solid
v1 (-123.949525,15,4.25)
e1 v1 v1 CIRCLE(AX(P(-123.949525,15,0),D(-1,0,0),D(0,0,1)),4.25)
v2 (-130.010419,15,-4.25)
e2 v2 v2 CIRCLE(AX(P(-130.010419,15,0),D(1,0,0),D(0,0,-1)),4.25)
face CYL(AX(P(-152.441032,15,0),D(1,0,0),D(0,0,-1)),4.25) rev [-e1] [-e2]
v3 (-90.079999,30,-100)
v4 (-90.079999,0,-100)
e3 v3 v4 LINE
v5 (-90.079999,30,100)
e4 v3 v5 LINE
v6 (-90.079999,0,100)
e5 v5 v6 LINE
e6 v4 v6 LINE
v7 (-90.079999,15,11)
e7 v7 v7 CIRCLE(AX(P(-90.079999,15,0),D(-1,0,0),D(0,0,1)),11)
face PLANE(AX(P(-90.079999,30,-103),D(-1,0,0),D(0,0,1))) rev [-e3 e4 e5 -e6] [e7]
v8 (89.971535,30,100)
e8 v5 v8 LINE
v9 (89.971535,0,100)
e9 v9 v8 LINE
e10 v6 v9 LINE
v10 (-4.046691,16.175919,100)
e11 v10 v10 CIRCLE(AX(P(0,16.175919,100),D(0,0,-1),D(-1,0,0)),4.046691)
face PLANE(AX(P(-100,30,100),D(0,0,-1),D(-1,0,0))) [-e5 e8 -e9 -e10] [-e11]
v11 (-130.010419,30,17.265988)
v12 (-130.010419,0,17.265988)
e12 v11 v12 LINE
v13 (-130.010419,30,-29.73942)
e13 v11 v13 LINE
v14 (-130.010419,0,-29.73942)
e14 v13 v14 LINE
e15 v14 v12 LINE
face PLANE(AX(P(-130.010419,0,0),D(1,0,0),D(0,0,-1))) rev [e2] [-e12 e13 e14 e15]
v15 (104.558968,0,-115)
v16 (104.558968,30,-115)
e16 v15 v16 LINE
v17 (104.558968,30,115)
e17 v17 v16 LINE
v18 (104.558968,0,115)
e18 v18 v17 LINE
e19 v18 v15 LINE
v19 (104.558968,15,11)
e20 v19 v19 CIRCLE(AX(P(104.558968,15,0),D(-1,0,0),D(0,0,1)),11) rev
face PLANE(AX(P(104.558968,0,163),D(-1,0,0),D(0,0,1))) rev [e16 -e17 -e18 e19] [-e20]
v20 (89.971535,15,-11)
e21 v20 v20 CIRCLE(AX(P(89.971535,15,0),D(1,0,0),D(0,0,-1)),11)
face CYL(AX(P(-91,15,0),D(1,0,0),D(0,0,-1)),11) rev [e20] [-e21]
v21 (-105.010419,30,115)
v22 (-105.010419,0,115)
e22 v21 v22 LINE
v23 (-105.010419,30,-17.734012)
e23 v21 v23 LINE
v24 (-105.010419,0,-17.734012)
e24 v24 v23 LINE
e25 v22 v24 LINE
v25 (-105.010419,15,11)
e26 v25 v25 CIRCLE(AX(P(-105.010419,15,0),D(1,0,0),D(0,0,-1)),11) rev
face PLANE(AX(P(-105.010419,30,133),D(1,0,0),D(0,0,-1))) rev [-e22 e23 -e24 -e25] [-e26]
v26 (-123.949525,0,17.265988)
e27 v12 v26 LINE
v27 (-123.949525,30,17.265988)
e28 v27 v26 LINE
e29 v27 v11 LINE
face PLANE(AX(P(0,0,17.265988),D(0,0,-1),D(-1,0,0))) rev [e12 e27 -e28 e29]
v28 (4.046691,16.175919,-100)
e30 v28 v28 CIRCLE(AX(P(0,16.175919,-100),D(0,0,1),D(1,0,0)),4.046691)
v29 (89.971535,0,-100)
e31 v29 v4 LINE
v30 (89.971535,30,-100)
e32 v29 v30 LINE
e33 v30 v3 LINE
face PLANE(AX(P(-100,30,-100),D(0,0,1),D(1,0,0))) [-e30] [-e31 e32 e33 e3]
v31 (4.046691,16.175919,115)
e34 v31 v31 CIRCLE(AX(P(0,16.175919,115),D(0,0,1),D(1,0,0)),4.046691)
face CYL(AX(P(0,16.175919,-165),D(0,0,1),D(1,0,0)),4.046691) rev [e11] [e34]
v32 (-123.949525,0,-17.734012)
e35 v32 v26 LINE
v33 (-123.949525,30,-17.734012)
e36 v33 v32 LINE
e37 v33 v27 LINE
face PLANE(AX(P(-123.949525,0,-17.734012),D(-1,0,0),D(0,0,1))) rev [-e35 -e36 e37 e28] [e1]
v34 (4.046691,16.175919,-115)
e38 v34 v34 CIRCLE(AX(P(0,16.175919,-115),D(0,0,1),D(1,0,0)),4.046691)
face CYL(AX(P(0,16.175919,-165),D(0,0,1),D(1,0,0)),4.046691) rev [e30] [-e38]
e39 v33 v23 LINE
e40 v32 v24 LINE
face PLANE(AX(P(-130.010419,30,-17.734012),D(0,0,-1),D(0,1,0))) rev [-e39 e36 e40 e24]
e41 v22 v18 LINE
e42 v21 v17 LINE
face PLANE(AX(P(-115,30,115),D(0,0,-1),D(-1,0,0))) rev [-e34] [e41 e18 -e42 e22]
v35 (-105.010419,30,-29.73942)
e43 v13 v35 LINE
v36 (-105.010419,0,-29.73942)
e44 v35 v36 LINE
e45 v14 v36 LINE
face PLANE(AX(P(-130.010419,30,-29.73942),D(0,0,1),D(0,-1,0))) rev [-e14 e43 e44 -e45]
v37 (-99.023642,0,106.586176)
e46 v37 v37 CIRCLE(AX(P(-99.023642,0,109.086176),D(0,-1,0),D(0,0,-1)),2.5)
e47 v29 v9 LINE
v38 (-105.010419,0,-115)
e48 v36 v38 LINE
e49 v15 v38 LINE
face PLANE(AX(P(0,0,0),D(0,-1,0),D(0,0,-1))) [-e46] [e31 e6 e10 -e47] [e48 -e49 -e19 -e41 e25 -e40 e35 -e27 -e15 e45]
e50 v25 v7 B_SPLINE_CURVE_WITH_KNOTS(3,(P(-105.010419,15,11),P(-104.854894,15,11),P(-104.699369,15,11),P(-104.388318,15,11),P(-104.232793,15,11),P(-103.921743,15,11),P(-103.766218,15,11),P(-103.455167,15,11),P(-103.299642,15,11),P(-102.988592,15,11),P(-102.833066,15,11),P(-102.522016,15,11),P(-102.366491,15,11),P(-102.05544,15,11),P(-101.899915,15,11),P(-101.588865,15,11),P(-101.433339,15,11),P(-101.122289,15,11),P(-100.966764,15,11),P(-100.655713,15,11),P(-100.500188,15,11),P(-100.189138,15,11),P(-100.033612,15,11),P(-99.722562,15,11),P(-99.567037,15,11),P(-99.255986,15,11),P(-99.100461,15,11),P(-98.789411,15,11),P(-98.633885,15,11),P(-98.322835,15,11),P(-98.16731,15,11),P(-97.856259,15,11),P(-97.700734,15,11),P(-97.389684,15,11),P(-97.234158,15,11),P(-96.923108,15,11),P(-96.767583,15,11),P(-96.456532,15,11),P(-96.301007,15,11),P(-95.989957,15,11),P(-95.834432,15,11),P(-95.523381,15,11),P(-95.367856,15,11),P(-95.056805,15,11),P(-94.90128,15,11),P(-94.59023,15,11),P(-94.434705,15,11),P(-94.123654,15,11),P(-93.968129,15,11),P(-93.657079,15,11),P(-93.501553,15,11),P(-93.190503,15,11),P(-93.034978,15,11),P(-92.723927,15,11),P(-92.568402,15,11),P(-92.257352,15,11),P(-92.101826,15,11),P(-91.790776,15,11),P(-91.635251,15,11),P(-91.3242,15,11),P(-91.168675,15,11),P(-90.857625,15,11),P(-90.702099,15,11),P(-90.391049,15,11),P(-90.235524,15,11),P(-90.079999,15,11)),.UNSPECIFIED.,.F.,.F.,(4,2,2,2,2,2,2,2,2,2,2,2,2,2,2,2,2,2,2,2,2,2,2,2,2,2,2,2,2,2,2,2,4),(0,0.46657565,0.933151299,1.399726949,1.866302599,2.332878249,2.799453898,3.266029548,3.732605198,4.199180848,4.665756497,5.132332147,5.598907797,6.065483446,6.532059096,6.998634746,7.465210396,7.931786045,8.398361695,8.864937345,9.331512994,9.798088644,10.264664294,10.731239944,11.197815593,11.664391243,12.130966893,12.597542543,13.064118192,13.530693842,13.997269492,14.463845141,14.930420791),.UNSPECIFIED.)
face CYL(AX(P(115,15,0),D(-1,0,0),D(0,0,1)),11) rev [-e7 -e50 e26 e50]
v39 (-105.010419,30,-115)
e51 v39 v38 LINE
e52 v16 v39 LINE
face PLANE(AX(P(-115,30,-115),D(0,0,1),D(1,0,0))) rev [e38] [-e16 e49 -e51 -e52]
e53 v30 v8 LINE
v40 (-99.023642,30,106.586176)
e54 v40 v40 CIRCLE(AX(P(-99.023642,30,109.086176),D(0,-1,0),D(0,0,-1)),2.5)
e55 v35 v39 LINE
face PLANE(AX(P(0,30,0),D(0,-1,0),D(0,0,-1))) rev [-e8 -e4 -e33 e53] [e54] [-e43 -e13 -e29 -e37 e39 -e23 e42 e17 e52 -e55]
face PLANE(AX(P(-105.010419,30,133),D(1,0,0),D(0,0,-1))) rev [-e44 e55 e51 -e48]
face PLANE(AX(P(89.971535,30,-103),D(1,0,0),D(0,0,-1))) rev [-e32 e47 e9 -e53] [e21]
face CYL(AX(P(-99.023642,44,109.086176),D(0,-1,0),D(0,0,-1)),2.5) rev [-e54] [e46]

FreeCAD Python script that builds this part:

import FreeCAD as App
import Part
import Sketcher
from FreeCAD import Vector


def add_polygon(sketch, points):
    """Adds a closed chain of lines whose ends are joined by coincident constraints."""
    first, n = sketch.GeometryCount, len(points)
    for a, b in zip(points, points[1:] + points[:1]):
        sketch.addGeometry(Part.LineSegment(App.Vector(*a, 0), App.Vector(*b, 0)), False)
    for i in range(n):
        sketch.addConstraint(Sketcher.Constraint("Coincident", first + i, 2, first + (i + 1) % n, 1))

doc = App.newDocument("Part")
params = doc.addObject("Spreadsheet::Sheet", "Params")
for row, (alias, value) in enumerate([
    ("sketch1_width", "230 mm"),
    ("sketch1_width2", "200 mm"),
    ("pad1_length", "30 mm"),
    ("sketch2_diameter", "22 mm"),
    ("pocket1_length", "206 mm"),
    ("sketch3_width", "30 mm"),
    ("pad2_length", "28 mm"),
    ("sketch4_height", "30 mm"),
    ("pad3_length", "41 mm"),
    ("sketch5_diameter", "8 mm"),
    ("pocket2_length", "218 mm"),
    ("pocket3_length", "280 mm"),
    ("sketch7_diameter", "22 mm"),
    ("pocket4_length", "230 mm"),
    ("sketch8_height", "30 mm"),
    ("pocket5_length", "41 mm"),
    ("sketch9_diameter", "8 mm"),
    ("pocket6_length", "264 mm"),
    ("sketch10_diameter", "8 mm"),
    ("pocket7_length", "264 mm"),
    ("sketch11_height", "30 mm"),
    ("pocket8_length", "64 mm"),
    ("sketch12_height", "30 mm"),
    ("pad4_length", "40 mm"),
    ("sketch13_diameter", "8 mm"),
    ("pocket9_length", "276 mm"),
    ("sketch14_height", "30 mm"),
    ("pad5_length", "203 mm"),
    ("sketch15_height", "30 mm"),
    ("sketch15_width", "9.920001 mm"),
    ("pad6_length", "203 mm"),
    ("sketch16_height", "30 mm"),
    ("pocket10_length", "203 mm"),
    ("sketch17_height", "30 mm"),
    ("pocket11_length", "278 mm"),
    ("pad7_length", "30 mm"),
    ("sketch19_height", "30 mm"),
    ("pocket12_length", "248 mm"),
    ("sketch20_diameter", "22 mm"),
    ("pocket13_length", "248 mm"),
    ("sketch21_width", "30 mm"),
    ("pad8_length", "25 mm"),
    ("sketch22_height", "30 mm"),
    ("pad9_length", "35 mm"),
    ("sketch23_height", "30 mm"),
    ("pocket14_length", "35 mm"),
    ("sketch24_diameter", "8.5 mm"),
    ("pocket15_length", "257 mm"),
    ("sketch25_diameter", "5 mm"),
    ("pocket16_length", "44 mm"),
], start=1):
    params.set(f"A{row}", alias)
    params.set(f"B{row}", "=" + value)
    params.setAlias(f"B{row}", alias)

body = doc.addObject("PartDesign::Body", "Body")

# Sketch on XZ plane
sketch1 = body.newObject("Sketcher::SketchObject", "Sketch")
sketch1.AttachmentSupport = (doc.getObject("XZ_Plane"), [""])
sketch1.MapMode = "FlatFace"
add_polygon(sketch1, [(-115, -115), (-115, 115), (115, 115), (115, -115)])  # lines 0-3
add_polygon(sketch1, [(100, 100), (-100, 100), (-100, -100), (100, -100)])  # lines 4-7
sketch1.addConstraint(Sketcher.Constraint("Vertical", 0))
sketch1.addConstraint(Sketcher.Constraint("Horizontal", 1))
sketch1.addConstraint(Sketcher.Constraint("Vertical", 2))
sketch1.addConstraint(Sketcher.Constraint("Horizontal", 3))
sketch1.addConstraint(Sketcher.Constraint("Horizontal", 4))
sketch1.addConstraint(Sketcher.Constraint("Vertical", 5))
sketch1.addConstraint(Sketcher.Constraint("Horizontal", 6))
sketch1.addConstraint(Sketcher.Constraint("Vertical", 7))
sketch1.addConstraint(Sketcher.Constraint("Symmetric", 0, 2, 2, 2, -1, 1))
sketch1.addConstraint(Sketcher.Constraint("Symmetric", 4, 2, 6, 2, -1, 1))
sketch1.addConstraint(Sketcher.Constraint("Equal", 3, 0))
sketch1.addConstraint(Sketcher.Constraint("Equal", 6, 5))
sketch1.addConstraint(Sketcher.Constraint("DistanceX", 1, 1, 1, 2, 230.0))
sketch1.addConstraint(Sketcher.Constraint("DistanceX", 4, 2, 4, 1, 200.0))
sketch1.setExpression("Constraints[20]", "Params.sketch1_width")
sketch1.setExpression("Constraints[21]", "Params.sketch1_width2")
pad1 = body.newObject("PartDesign::Pad", "Pad")
pad1.Profile = sketch1
pad1.setExpression("Length", "Params.pad1_length")
pad1.Reversed = True

# Sketch on YZ plane
sketch2 = body.newObject("Sketcher::SketchObject", "Sketch001")
sketch2.AttachmentSupport = (doc.getObject("YZ_Plane"), [""])
sketch2.MapMode = "FlatFace"
sketch2.AttachmentOffset = App.Placement(Vector(0, 0, 115), App.Rotation())
sketch2.addGeometry(Part.Circle(Vector(15, 0, 0), Vector(0, 0, 1), 11), False)
sketch2.addConstraint(Sketcher.Constraint("PointOnObject", 0, 3, -1))
sketch2.addConstraint(Sketcher.Constraint("Diameter", 0, 22.0))
sketch2.addConstraint(Sketcher.Constraint("DistanceX", -1, 1, 0, 3, 15.0))
sketch2.setExpression("Constraints[1]", "Params.sketch2_diameter")
pocket1 = body.newObject("PartDesign::Pocket", "Pocket")
pocket1.Profile = sketch2
pocket1.setExpression("Length", "Params.pocket1_length")

# Sketch on YZ plane
sketch3 = body.newObject("Sketcher::SketchObject", "Sketch002")
sketch3.AttachmentSupport = (doc.getObject("YZ_Plane"), [""])
sketch3.MapMode = "FlatFace"
sketch3.AttachmentOffset = App.Placement(Vector(0, 0, 115), App.Rotation())
add_polygon(sketch3, [(30, -20), (0, -20), (0, -33), (30, -33)])  # lines 0-3
sketch3.addConstraint(Sketcher.Constraint("Horizontal", 0))
sketch3.addConstraint(Sketcher.Constraint("Vertical", 1))
sketch3.addConstraint(Sketcher.Constraint("Horizontal", 2))
sketch3.addConstraint(Sketcher.Constraint("Vertical", 3))
sketch3.addConstraint(Sketcher.Constraint("PointOnObject", 0, 2, -2))
sketch3.addConstraint(Sketcher.Constraint("DistanceX", 0, 2, 0, 1, 30.0))
sketch3.addConstraint(Sketcher.Constraint("DistanceY", 1, 2, 1, 1, 12.648409))
sketch3.addConstraint(Sketcher.Constraint("DistanceY", 0, 2, -1, 1, 20.286584))
sketch3.setExpression("Constraints[9]", "Params.sketch3_width")
pad2 = body.newObject("PartDesign::Pad", "Pad001")
pad2.Profile = sketch3
pad2.setExpression("Length", "Params.pad2_length")

# Sketch on XY plane
sketch4 = body.newObject("Sketcher::SketchObject", "Sketch003")
sketch4.AttachmentSupport = (doc.getObject("XY_Plane"), [""])
sketch4.MapMode = "FlatFace"
sketch4.AttachmentOffset = App.Placement(Vector(0, 0, -20.286584), App.Rotation())
add_polygon(sketch4, [(110, 30), (110, 0), (143, 0), (143, 30)])  # lines 0-3
sketch4.addConstraint(Sketcher.Constraint("Vertical", 0))
sketch4.addConstraint(Sketcher.Constraint("Horizontal", 1))
sketch4.addConstraint(Sketcher.Constraint("Vertical", 2))
sketch4.addConstraint(Sketcher.Constraint("Horizontal", 3))
sketch4.addConstraint(Sketcher.Constraint("PointOnObject", 0, 2, -1))
sketch4.addConstraint(Sketcher.Constraint("DistanceY", 0, 2, 0, 1, 30.0))
sketch4.addConstraint(Sketcher.Constraint("DistanceX", -1, 1, 1, 2, 143.0))
sketch4.addConstraint(Sketcher.Constraint("DistanceX", 1, 1, 1, 2, 33.277007))
sketch4.setExpression("Constraints[9]", "Params.sketch4_height")
pad3 = body.newObject("PartDesign::Pad", "Pad002")
pad3.Profile = sketch4
pad3.setExpression("Length", "Params.pad3_length")

# Sketch on YZ plane
sketch5 = body.newObject("Sketcher::SketchObject", "Sketch004")
sketch5.AttachmentSupport = (doc.getObject("YZ_Plane"), [""])
sketch5.MapMode = "FlatFace"
sketch5.AttachmentOffset = App.Placement(Vector(0, 0, -115), App.Rotation())
sketch5.addGeometry(Part.Circle(Vector(15, 0, 0), Vector(0, 0, 1), 4), False)
sketch5.addConstraint(Sketcher.Constraint("PointOnObject", 0, 3, -1))
sketch5.addConstraint(Sketcher.Constraint("Diameter", 0, 8.0))
sketch5.addConstraint(Sketcher.Constraint("DistanceX", -1, 1, 0, 3, 15.0))
sketch5.setExpression("Constraints[1]", "Params.sketch5_diameter")
pocket2 = body.newObject("PartDesign::Pocket", "Pocket001")
pocket2.Profile = sketch5
pocket2.setExpression("Length", "Params.pocket2_length")
pocket2.Reversed = True

# Sketch on XY plane
sketch6 = body.newObject("Sketcher::SketchObject", "Sketch005")
sketch6.AttachmentSupport = (doc.getObject("XY_Plane"), [""])
sketch6.MapMode = "FlatFace"
sketch6.AttachmentOffset = App.Placement(Vector(0, 0, 115), App.Rotation())
sketch6.addGeometry(Part.Circle(Vector(0, 16.2, 0), Vector(0, 0, 1), 4), False)
sketch6.addConstraint(Sketcher.Constraint("PointOnObject", 0, 3, -2))
sketch6.addConstraint(Sketcher.Constraint("Diameter", 0, 8.093381))
sketch6.addConstraint(Sketcher.Constraint("DistanceY", -1, 1, 0, 3, 16.175919))
pocket3 = body.newObject("PartDesign::Pocket", "Pocket002")
pocket3.Profile = sketch6
pocket3.setExpression("Length", "Params.pocket3_length")

# Sketch on YZ plane
sketch7 = body.newObject("Sketcher::SketchObject", "Sketch006")
sketch7.AttachmentSupport = (doc.getObject("YZ_Plane"), [""])
sketch7.MapMode = "FlatFace"
sketch7.AttachmentOffset = App.Placement(Vector(0, 0, 115), App.Rotation())
sketch7.addGeometry(Part.Circle(Vector(15, 0, 0), Vector(0, 0, 1), 11), False)
sketch7.addConstraint(Sketcher.Constraint("PointOnObject", 0, 3, -1))
sketch7.addConstraint(Sketcher.Constraint("Diameter", 0, 22.0))
sketch7.addConstraint(Sketcher.Constraint("DistanceX", -1, 1, 0, 3, 15.0))
sketch7.setExpression("Constraints[1]", "Params.sketch7_diameter")
pocket4 = body.newObject("PartDesign::Pocket", "Pocket003")
pocket4.Profile = sketch7
pocket4.setExpression("Length", "Params.pocket4_length")

# Sketch on XY plane
sketch8 = body.newObject("Sketcher::SketchObject", "Sketch007")
sketch8.AttachmentSupport = (doc.getObject("XY_Plane"), [""])
sketch8.MapMode = "FlatFace"
sketch8.AttachmentOffset = App.Placement(Vector(0, 0, 20.713416), App.Rotation())
add_polygon(sketch8, [(115, 30), (115, 0), (135, 0), (135, 30)])  # lines 0-3
sketch8.addConstraint(Sketcher.Constraint("Vertical", 0))
sketch8.addConstraint(Sketcher.Constraint("Horizontal", 1))
sketch8.addConstraint(Sketcher.Constraint("Vertical", 2))
sketch8.addConstraint(Sketcher.Constraint("Horizontal", 3))
sketch8.addConstraint(Sketcher.Constraint("PointOnObject", 0, 2, -1))
sketch8.addConstraint(Sketcher.Constraint("DistanceY", 0, 2, 0, 1, 30.0))
sketch8.addConstraint(Sketcher.Constraint("DistanceX", -1, 1, 0, 2, 115.0))
sketch8.addConstraint(Sketcher.Constraint("DistanceX", 1, 1, 1, 2, 19.776161))
sketch8.setExpression("Constraints[9]", "Params.sketch8_height")
pocket5 = body.newObject("PartDesign::Pocket", "Pocket004")
pocket5.Profile = sketch8
pocket5.setExpression("Length", "Params.pocket5_length")

# Sketch on YZ plane
sketch9 = body.newObject("Sketcher::SketchObject", "Sketch008")
sketch9.AttachmentSupport = (doc.getObject("YZ_Plane"), [""])
sketch9.MapMode = "FlatFace"
sketch9.AttachmentOffset = App.Placement(Vector(0, 0, -115), App.Rotation())
sketch9.addGeometry(Part.Circle(Vector(15, 0, 0), Vector(0, 0, 1), 4), False)
sketch9.addConstraint(Sketcher.Constraint("PointOnObject", 0, 3, -1))
sketch9.addConstraint(Sketcher.Constraint("Diameter", 0, 8.0))
sketch9.addConstraint(Sketcher.Constraint("DistanceX", -1, 1, 0, 3, 15.0))
sketch9.setExpression("Constraints[1]", "Params.sketch9_diameter")
pocket6 = body.newObject("PartDesign::Pocket", "Pocket005")
pocket6.Profile = sketch9
pocket6.setExpression("Length", "Params.pocket6_length")
pocket6.Reversed = True

# Sketch on XZ plane
sketch10 = body.newObject("Sketcher::SketchObject", "Sketch009")
sketch10.AttachmentSupport = (doc.getObject("XZ_Plane"), [""])
sketch10.MapMode = "FlatFace"
sketch10.AttachmentOffset = App.Placement(Vector(0, 0, -30), App.Rotation())
sketch10.addGeometry(Part.Circle(Vector(106.9, 106.2, 0), Vector(0, 0, 1), 4), False)
sketch10.addConstraint(Sketcher.Constraint("Diameter", 0, 8.0))
sketch10.addConstraint(Sketcher.Constraint("DistanceX", -1, 1, 0, 3, 106.851068))
sketch10.addConstraint(Sketcher.Constraint("DistanceY", -1, 1, 0, 3, 106.177183))
sketch10.setExpression("Constraints[0]", "Params.sketch10_diameter")
pocket7 = body.newObject("PartDesign::Pocket", "Pocket006")
pocket7.Profile = sketch10
pocket7.setExpression("Length", "Params.pocket7_length")
pocket7.Reversed = True

# Sketch on XY plane
sketch11 = body.newObject("Sketcher::SketchObject", "Sketch010")
sketch11.AttachmentSupport = (doc.getObject("XY_Plane"), [""])
sketch11.MapMode = "FlatFace"
sketch11.AttachmentOffset = App.Placement(Vector(0, 0, 20.713416), App.Rotation())
add_polygon(sketch11, [(135, 30), (135, 0), (143, 0), (143, 30)])  # lines 0-3
sketch11.addConstraint(Sketcher.Constraint("Vertical", 0))
sketch11.addConstraint(Sketcher.Constraint("Horizontal", 1))
sketch11.addConstraint(Sketcher.Constraint("Vertical", 2))
sketch11.addConstraint(Sketcher.Constraint("Horizontal", 3))
sketch11.addConstraint(Sketcher.Constraint("PointOnObject", 0, 2, -1))
sketch11.addConstraint(Sketcher.Constraint("DistanceY", 0, 2, 0, 1, 30.0))
sketch11.addConstraint(Sketcher.Constraint("DistanceX", -1, 1, 1, 2, 143.0))
sketch11.addConstraint(Sketcher.Constraint("DistanceX", 1, 1, 1, 2, 8.223839))
sketch11.setExpression("Constraints[9]", "Params.sketch11_height")
pocket8 = body.newObject("PartDesign::Pocket", "Pocket007")
pocket8.Profile = sketch11
pocket8.setExpression("Length", "Params.pocket8_length")

# Sketch on XY plane
sketch12 = body.newObject("Sketcher::SketchObject", "Sketch011")
sketch12.AttachmentSupport = (doc.getObject("XY_Plane"), [""])
sketch12.MapMode = "FlatFace"
sketch12.AttachmentOffset = App.Placement(Vector(0, 0, -20.286584), App.Rotation())
add_polygon(sketch12, [(128, 30), (128, 0), (135, 0), (135, 30)])  # lines 0-3
sketch12.addConstraint(Sketcher.Constraint("Vertical", 0))
sketch12.addConstraint(Sketcher.Constraint("Horizontal", 1))
sketch12.addConstraint(Sketcher.Constraint("Vertical", 2))
sketch12.addConstraint(Sketcher.Constraint("Horizontal", 3))
sketch12.addConstraint(Sketcher.Constraint("PointOnObject", 0, 2, -1))
sketch12.addConstraint(Sketcher.Constraint("DistanceY", 0, 2, 0, 1, 30.0))
sketch12.addConstraint(Sketcher.Constraint("DistanceX", 1, 1, 1, 2, 6.51244))
sketch12.addConstraint(Sketcher.Constraint("DistanceX", -1, 1, 0, 2, 128.263721))
sketch12.setExpression("Constraints[9]", "Params.sketch12_height")
pad4 = body.newObject("PartDesign::Pad", "Pad003")
pad4.Profile = sketch12
pad4.setExpression("Length", "Params.pad4_length")

# Sketch on YZ plane
sketch13 = body.newObject("Sketcher::SketchObject", "Sketch012")
sketch13.AttachmentSupport = (doc.getObject("YZ_Plane"), [""])
sketch13.MapMode = "FlatFace"
sketch13.AttachmentOffset = App.Placement(Vector(0, 0, -115), App.Rotation())
sketch13.addGeometry(Part.Circle(Vector(15, 0, 0), Vector(0, 0, 1), 4), False)
sketch13.addConstraint(Sketcher.Constraint("PointOnObject", 0, 3, -1))
sketch13.addConstraint(Sketcher.Constraint("Diameter", 0, 8.0))
sketch13.addConstraint(Sketcher.Constraint("DistanceX", -1, 1, 0, 3, 15.0))
sketch13.setExpression("Constraints[1]", "Params.sketch13_diameter")
pocket9 = body.newObject("PartDesign::Pocket", "Pocket008")
pocket9.Profile = sketch13
pocket9.setExpression("Length", "Params.pocket9_length")
pocket9.Reversed = True

# Sketch on XY plane
sketch14 = body.newObject("Sketcher::SketchObject", "Sketch013")
sketch14.AttachmentSupport = (doc.getObject("XY_Plane"), [""])
sketch14.MapMode = "FlatFace"
sketch14.AttachmentOffset = App.Placement(Vector(0, 0, 100), App.Rotation())
add_polygon(sketch14, [(100, 30), (100, 0), (90, 0), (90, 30)])  # lines 0-3
sketch14.addConstraint(Sketcher.Constraint("Vertical", 0))
sketch14.addConstraint(Sketcher.Constraint("Horizontal", 1))
sketch14.addConstraint(Sketcher.Constraint("Vertical", 2))
sketch14.addConstraint(Sketcher.Constraint("Horizontal", 3))
sketch14.addConstraint(Sketcher.Constraint("PointOnObject", 0, 2, -1))
sketch14.addConstraint(Sketcher.Constraint("DistanceY", 0, 2, 0, 1, 30.0))
sketch14.addConstraint(Sketcher.Constraint("DistanceX", -1, 1, 0, 2, 100.0))
sketch14.addConstraint(Sketcher.Constraint("DistanceX", 1, 2, 1, 1, 10.028465))
sketch14.setExpression("Constraints[9]", "Params.sketch14_height")
pad5 = body.newObject("PartDesign::Pad", "Pad004")
pad5.Profile = sketch14
pad5.setExpression("Length", "Params.pad5_length")
pad5.Reversed = True

# Sketch on XY plane
sketch15 = body.newObject("Sketcher::SketchObject", "Sketch014")
sketch15.AttachmentSupport = (doc.getObject("XY_Plane"), [""])
sketch15.MapMode = "FlatFace"
sketch15.AttachmentOffset = App.Placement(Vector(0, 0, 100), App.Rotation())
add_polygon(sketch15, [(-90, 30), (-90, 0), (-100, 0), (-100, 30)])  # lines 0-3
sketch15.addConstraint(Sketcher.Constraint("Vertical", 0))
sketch15.addConstraint(Sketcher.Constraint("Horizontal", 1))
sketch15.addConstraint(Sketcher.Constraint("Vertical", 2))
sketch15.addConstraint(Sketcher.Constraint("Horizontal", 3))
sketch15.addConstraint(Sketcher.Constraint("PointOnObject", 0, 2, -1))
sketch15.addConstraint(Sketcher.Constraint("DistanceY", 0, 2, 0, 1, 30.0))
sketch15.addConstraint(Sketcher.Constraint("DistanceX", 1, 2, -1, 1, 100.0))
sketch15.addConstraint(Sketcher.Constraint("DistanceX", 1, 2, 1, 1, 9.920001))
sketch15.setExpression("Constraints[9]", "Params.sketch15_height")
sketch15.setExpression("Constraints[11]", "Params.sketch15_width")
pad6 = body.newObject("PartDesign::Pad", "Pad005")
pad6.Profile = sketch15
pad6.setExpression("Length", "Params.pad6_length")
pad6.Reversed = True

# Sketch on XY plane
sketch16 = body.newObject("Sketcher::SketchObject", "Sketch015")
sketch16.AttachmentSupport = (doc.getObject("XY_Plane"), [""])
sketch16.MapMode = "FlatFace"
sketch16.AttachmentOffset = App.Placement(Vector(0, 0, -32.934993), App.Rotation())
add_polygon(sketch16, [(135, 30), (135, 0), (115, 0), (115, 30)])  # lines 0-3
sketch16.addConstraint(Sketcher.Constraint("Vertical", 0))
sketch16.addConstraint(Sketcher.Constraint("Horizontal", 1))
sketch16.addConstraint(Sketcher.Constraint("Vertical", 2))
sketch16.addConstraint(Sketcher.Constraint("Horizontal", 3))
sketch16.addConstraint(Sketcher.Constraint("PointOnObject", 0, 2, -1))
sketch16.addConstraint(Sketcher.Constraint("DistanceY", 0, 2, 0, 1, 30.0))
sketch16.addConstraint(Sketcher.Constraint("DistanceX", -1, 1, 1, 2, 115.0))
sketch16.addConstraint(Sketcher.Constraint("DistanceX", 1, 2, 1, 1, 19.776161))
sketch16.setExpression("Constraints[9]", "Params.sketch16_height")
pocket10 = body.newObject("PartDesign::Pocket", "Pocket009")
pocket10.Profile = sketch16
pocket10.setExpression("Length", "Params.pocket10_length")
pocket10.Reversed = True

# Sketch on XY plane
sketch17 = body.newObject("Sketcher::SketchObject", "Sketch016")
sketch17.AttachmentSupport = (doc.getObject("XY_Plane"), [""])
sketch17.MapMode = "FlatFace"
sketch17.AttachmentOffset = App.Placement(Vector(0, 0, -115), App.Rotation())
add_polygon(sketch17, [(115, 30), (115, 0), (105, 0), (105, 30)])  # lines 0-3
sketch17.addConstraint(Sketcher.Constraint("Vertical", 0))
sketch17.addConstraint(Sketcher.Constraint("Horizontal", 1))
sketch17.addConstraint(Sketcher.Constraint("Vertical", 2))
sketch17.addConstraint(Sketcher.Constraint("Horizontal", 3))
sketch17.addConstraint(Sketcher.Constraint("PointOnObject", 0, 2, -1))
sketch17.addConstraint(Sketcher.Constraint("DistanceY", 0, 2, 0, 1, 30.0))
sketch17.addConstraint(Sketcher.Constraint("DistanceX", -1, 1, 0, 2, 115.0))
sketch17.addConstraint(Sketcher.Constraint("DistanceX", 1, 2, 1, 1, 10.441032))
sketch17.setExpression("Constraints[9]", "Params.sketch17_height")
pocket11 = body.newObject("PartDesign::Pocket", "Pocket010")
pocket11.Profile = sketch17
pocket11.setExpression("Length", "Params.pocket11_length")
pocket11.Reversed = True

# Sketch on XZ plane
sketch18 = body.newObject("Sketcher::SketchObject", "Sketch017")
sketch18.AttachmentSupport = (doc.getObject("XZ_Plane"), [""])
sketch18.MapMode = "FlatFace"
sketch18.AttachmentOffset = App.Placement(Vector(0, 0, -30), App.Rotation())
add_polygon(sketch18, [(100.5, 102.9), (100.5, 115), (104.6, 115), (104.6, 102.9)])  # lines 0-3
sketch18.addConstraint(Sketcher.Constraint("Vertical", 0))
sketch18.addConstraint(Sketcher.Constraint("Horizontal", 1))
sketch18.addConstraint(Sketcher.Constraint("Vertical", 2))
sketch18.addConstraint(Sketcher.Constraint("Horizontal", 3))
sketch18.addConstraint(Sketcher.Constraint("DistanceY", -1, 1, 0, 2, 115.0))
sketch18.addConstraint(Sketcher.Constraint("DistanceY", 0, 1, 0, 2, 12.100968))
sketch18.addConstraint(Sketcher.Constraint("DistanceX", 1, 1, 1, 2, 4.062093))
sketch18.addConstraint(Sketcher.Constraint("DistanceX", -1, 1, 0, 2, 100.496874))
pad7 = body.newObject("PartDesign::Pad", "Pad006")
pad7.Profile = sketch18
pad7.setExpression("Length", "Params.pad7_length")

# Sketch on XY plane
sketch19 = body.newObject("Sketcher::SketchObject", "Sketch018")
sketch19.AttachmentSupport = (doc.getObject("XY_Plane"), [""])
sketch19.MapMode = "FlatFace"
sketch19.AttachmentOffset = App.Placement(Vector(0, 0, -115), App.Rotation())
add_polygon(sketch19, [(-105, 30), (-105, 0), (-115, 0), (-115, 30)])  # lines 0-3
sketch19.addConstraint(Sketcher.Constraint("Vertical", 0))
sketch19.addConstraint(Sketcher.Constraint("Horizontal", 1))
sketch19.addConstraint(Sketcher.Constraint("Vertical", 2))
sketch19.addConstraint(Sketcher.Constraint("Horizontal", 3))
sketch19.addConstraint(Sketcher.Constraint("PointOnObject", 0, 2, -1))
sketch19.addConstraint(Sketcher.Constraint("DistanceY", 0, 2, 0, 1, 30.0))
sketch19.addConstraint(Sketcher.Constraint("DistanceX", 1, 2, -1, 1, 115.0))
sketch19.addConstraint(Sketcher.Constraint("DistanceX", 1, 2, 1, 1, 9.989581))
sketch19.setExpression("Constraints[9]", "Params.sketch19_height")
pocket12 = body.newObject("PartDesign::Pocket", "Pocket011")
pocket12.Profile = sketch19
pocket12.setExpression("Length", "Params.pocket12_length")
pocket12.Reversed = True

# Sketch on YZ plane
sketch20 = body.newObject("Sketcher::SketchObject", "Sketch019")
sketch20.AttachmentSupport = (doc.getObject("YZ_Plane"), [""])
sketch20.MapMode = "FlatFace"
sketch20.AttachmentOffset = App.Placement(Vector(0, 0, 142.989581), App.Rotation())
sketch20.addGeometry(Part.Circle(Vector(15, 0, 0), Vector(0, 0, 1), 11), False)
sketch20.addConstraint(Sketcher.Constraint("PointOnObject", 0, 3, -1))
sketch20.addConstraint(Sketcher.Constraint("Diameter", 0, 22.0))
sketch20.addConstraint(Sketcher.Constraint("DistanceX", -1, 1, 0, 3, 15.0))
sketch20.setExpression("Constraints[1]", "Params.sketch20_diameter")
pocket13 = body.newObject("PartDesign::Pocket", "Pocket012")
pocket13.Profile = sketch20
pocket13.setExpression("Length", "Params.pocket13_length")

# Sketch on YZ plane
sketch21 = body.newObject("Sketcher::SketchObject", "Sketch020")
sketch21.AttachmentSupport = (doc.getObject("YZ_Plane"), [""])
sketch21.MapMode = "FlatFace"
sketch21.AttachmentOffset = App.Placement(Vector(0, 0, -105.010419), App.Rotation())
add_polygon(sketch21, [(30, -30), (0, -30), (0, -18), (30, -18)])  # lines 0-3
sketch21.addConstraint(Sketcher.Constraint("Horizontal", 0))
sketch21.addConstraint(Sketcher.Constraint("Vertical", 1))
sketch21.addConstraint(Sketcher.Constraint("Horizontal", 2))
sketch21.addConstraint(Sketcher.Constraint("Vertical", 3))
sketch21.addConstraint(Sketcher.Constraint("PointOnObject", 0, 2, -2))
sketch21.addConstraint(Sketcher.Constraint("DistanceX", 0, 2, 0, 1, 30.0))
sketch21.addConstraint(Sketcher.Constraint("DistanceY", 1, 1, 1, 2, 12.005408))
sketch21.addConstraint(Sketcher.Constraint("DistanceY", 0, 2, -1, 1, 29.73942))
sketch21.setExpression("Constraints[9]", "Params.sketch21_width")
pad8 = body.newObject("PartDesign::Pad", "Pad007")
pad8.Profile = sketch21
pad8.setExpression("Length", "Params.pad8_length")
pad8.Reversed = True

# Sketch on XY plane
sketch22 = body.newObject("Sketcher::SketchObject", "Sketch021")
sketch22.AttachmentSupport = (doc.getObject("XY_Plane"), [""])
sketch22.MapMode = "FlatFace"
sketch22.AttachmentOffset = App.Placement(Vector(0, 0, -17.734012), App.Rotation())
add_polygon(sketch22, [(-130, 30), (-130, 0), (-120, 0), (-120, 30)])  # lines 0-3
sketch22.addConstraint(Sketcher.Constraint("Vertical", 0))
sketch22.addConstraint(Sketcher.Constraint("Horizontal", 1))
sketch22.addConstraint(Sketcher.Constraint("Vertical", 2))
sketch22.addConstraint(Sketcher.Constraint("Horizontal", 3))
sketch22.addConstraint(Sketcher.Constraint("PointOnObject", 0, 2, -1))
sketch22.addConstraint(Sketcher.Constraint("DistanceY", 0, 2, 0, 1, 30.0))
sketch22.addConstraint(Sketcher.Constraint("DistanceX", 1, 1, 1, 2, 9.568764))
sketch22.addConstraint(Sketcher.Constraint("DistanceX", 0, 2, -1, 1, 130.010419))
sketch22.setExpression("Constraints[9]", "Params.sketch22_height")
pad9 = body.newObject("PartDesign::Pad", "Pad008")
pad9.Profile = sketch22
pad9.setExpression("Length", "Params.pad9_length")

# Sketch on XY plane
sketch23 = body.newObject("Sketcher::SketchObject", "Sketch022")
sketch23.AttachmentSupport = (doc.getObject("XY_Plane"), [""])
sketch23.MapMode = "FlatFace"
sketch23.AttachmentOffset = App.Placement(Vector(0, 0, 17.265988), App.Rotation())
add_polygon(sketch23, [(-123.9, 30), (-123.9, 0), (-120.4, 0), (-120.4, 30)])  # lines 0-3
sketch23.addConstraint(Sketcher.Constraint("Vertical", 0))
sketch23.addConstraint(Sketcher.Constraint("Horizontal", 1))
sketch23.addConstraint(Sketcher.Constraint("Vertical", 2))
sketch23.addConstraint(Sketcher.Constraint("Horizontal", 3))
sketch23.addConstraint(Sketcher.Constraint("PointOnObject", 0, 2, -1))
sketch23.addConstraint(Sketcher.Constraint("DistanceY", 0, 2, 0, 1, 30.0))
sketch23.addConstraint(Sketcher.Constraint("DistanceX", 1, 1, 1, 2, 3.507869))
sketch23.addConstraint(Sketcher.Constraint("DistanceX", 0, 2, -1, 1, 123.949525))
sketch23.setExpression("Constraints[9]", "Params.sketch23_height")
pocket14 = body.newObject("PartDesign::Pocket", "Pocket013")
pocket14.Profile = sketch23
pocket14.setExpression("Length", "Params.pocket14_length")

# Sketch on YZ plane
sketch24 = body.newObject("Sketcher::SketchObject", "Sketch023")
sketch24.AttachmentSupport = (doc.getObject("YZ_Plane"), [""])
sketch24.MapMode = "FlatFace"
sketch24.AttachmentOffset = App.Placement(Vector(0, 0, 104.558968), App.Rotation())
sketch24.addGeometry(Part.Circle(Vector(15, 0, 0), Vector(0, 0, 1), 4.2), False)
sketch24.addConstraint(Sketcher.Constraint("PointOnObject", 0, 3, -1))
sketch24.addConstraint(Sketcher.Constraint("Diameter", 0, 8.5))
sketch24.addConstraint(Sketcher.Constraint("DistanceX", -1, 1, 0, 3, 15.0))
sketch24.setExpression("Constraints[1]", "Params.sketch24_diameter")
pocket15 = body.newObject("PartDesign::Pocket", "Pocket014")
pocket15.Profile = sketch24
pocket15.setExpression("Length", "Params.pocket15_length")

# Sketch on XZ plane
sketch25 = body.newObject("Sketcher::SketchObject", "Sketch024")
sketch25.AttachmentSupport = (doc.getObject("XZ_Plane"), [""])
sketch25.MapMode = "FlatFace"
sketch25.addGeometry(Part.Circle(Vector(-99, 109.1, 0), Vector(0, 0, 1), 2.5), False)
sketch25.addConstraint(Sketcher.Constraint("Diameter", 0, 5.0))
sketch25.addConstraint(Sketcher.Constraint("DistanceX", 0, 3, -1, 1, 99.023642))
sketch25.addConstraint(Sketcher.Constraint("DistanceY", -1, 1, 0, 3, 109.086176))
sketch25.setExpression("Constraints[0]", "Params.sketch25_diameter")
pocket16 = body.newObject("PartDesign::Pocket", "Pocket015")
pocket16.Profile = sketch25
pocket16.setExpression("Length", "Params.pocket16_length")

doc.recompute()
